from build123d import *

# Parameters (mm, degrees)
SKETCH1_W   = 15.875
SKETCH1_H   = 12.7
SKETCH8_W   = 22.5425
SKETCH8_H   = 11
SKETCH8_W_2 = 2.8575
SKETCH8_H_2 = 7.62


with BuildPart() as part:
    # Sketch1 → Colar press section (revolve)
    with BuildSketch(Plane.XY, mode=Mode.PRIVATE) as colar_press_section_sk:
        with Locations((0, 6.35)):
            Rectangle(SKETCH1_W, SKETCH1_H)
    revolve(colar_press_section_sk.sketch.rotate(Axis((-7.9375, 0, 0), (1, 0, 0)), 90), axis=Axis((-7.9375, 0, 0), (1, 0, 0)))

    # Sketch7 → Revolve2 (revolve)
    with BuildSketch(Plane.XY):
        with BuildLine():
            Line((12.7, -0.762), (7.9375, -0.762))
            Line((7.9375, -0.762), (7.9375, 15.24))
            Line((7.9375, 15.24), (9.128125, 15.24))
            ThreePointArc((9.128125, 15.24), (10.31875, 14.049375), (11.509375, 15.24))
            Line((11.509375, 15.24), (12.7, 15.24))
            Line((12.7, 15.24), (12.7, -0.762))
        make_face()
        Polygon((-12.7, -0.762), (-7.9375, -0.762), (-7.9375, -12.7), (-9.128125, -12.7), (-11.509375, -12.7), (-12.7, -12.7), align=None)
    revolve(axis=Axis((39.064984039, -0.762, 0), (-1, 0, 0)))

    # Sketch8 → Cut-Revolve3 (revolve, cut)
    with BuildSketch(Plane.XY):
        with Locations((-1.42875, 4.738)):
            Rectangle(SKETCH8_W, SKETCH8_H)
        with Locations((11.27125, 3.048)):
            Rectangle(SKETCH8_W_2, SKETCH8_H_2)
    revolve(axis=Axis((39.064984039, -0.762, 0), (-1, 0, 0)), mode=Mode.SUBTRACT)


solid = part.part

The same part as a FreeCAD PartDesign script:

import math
import FreeCAD as App
import Part
import Sketcher
from FreeCAD import Vector
Q = App.Units.Quantity


def add_polygon(sketch, points):
    """Adds a closed chain of lines whose ends are joined by coincident constraints."""
    first, n = sketch.GeometryCount, len(points)
    for a, b in zip(points, points[1:] + points[:1]):
        sketch.addGeometry(Part.LineSegment(App.Vector(*a, 0), App.Vector(*b, 0)), False)
    for i in range(n):
        sketch.addConstraint(Sketcher.Constraint("Coincident", first + i, 2, first + (i + 1) % n, 1))

doc = App.newDocument("Part")
body = doc.addObject("PartDesign::Body", "Body")

# Sketch on XY plane
sketch1 = body.newObject("Sketcher::SketchObject", "Sketch")
sketch1.AttachmentSupport = (doc.getObject("XY_Plane"), [""])
sketch1.MapMode = "FlatFace"
add_polygon(sketch1, [(-8, 13), (-8, 0), (8, 0), (8, 13)])  # lines 0-3
sketch1.addConstraint(Sketcher.Constraint("Vertical", 0))
sketch1.addConstraint(Sketcher.Constraint("Horizontal", 1))
sketch1.addConstraint(Sketcher.Constraint("Vertical", 2))
sketch1.addConstraint(Sketcher.Constraint("Horizontal", 3))
sketch1.addConstraint(Sketcher.Constraint("Symmetric", 0, 2, 1, 2, -1, 1))
sketch1.addConstraint(Sketcher.Constraint("DistanceY", 0, 2, 0, 1, Q("0.5 in")))
sketch1.addConstraint(Sketcher.Constraint("DistanceX", 1, 1, 1, 2, Q("0.625 in")))
revolution = body.newObject("PartDesign::Revolution", "Revolution")
revolution.Profile = sketch1
revolution.ReferenceAxis = (sketch1, ["H_Axis"])
revolution.Angle = 360

# Sketch on XY plane
sketch2 = body.newObject("Sketcher::SketchObject", "Sketch001")
sketch2.AttachmentSupport = (doc.getObject("XY_Plane"), [""])
sketch2.MapMode = "FlatFace"
sketch2.addGeometry(Part.LineSegment(Vector(7.9, -0.8, 0), Vector(12.7, -0.8, 0)), False)  # 0
sketch2.addGeometry(Part.LineSegment(Vector(12.7, -0.8, 0), Vector(12.7, 15.2, 0)), False)  # 1
sketch2.addGeometry(Part.LineSegment(Vector(12.7, 15.2, 0), Vector(11.5, 15.2, 0)), False)  # 2
sketch2.addGeometry(Part.ArcOfCircle(Part.Circle(Vector(10.3, 15.2, 0), Vector(0, 0, 1), 1.2), math.radians(180), math.radians(360)), False)  # 3
sketch2.addGeometry(Part.LineSegment(Vector(9.1, 15.2, 0), Vector(7.9, 15.2, 0)), False)  # 4
sketch2.addGeometry(Part.LineSegment(Vector(7.9, 15.2, 0), Vector(7.9, -0.8, 0)), False)  # 5
add_polygon(sketch2, [(-7.9, -0.8), (-12.7, -0.8), (-12.7, -12.7), (-7.9, -12.7)])  # lines 6-9
sketch2.addGeometry(Part.LineSegment(Vector(12.7, -0.8, 0), Vector(-12.7, -0.8, 0)), True)  # axis
sketch2.addConstraint(Sketcher.Constraint("Coincident", 0, 2, 1, 1))
sketch2.addConstraint(Sketcher.Constraint("Coincident", 1, 2, 2, 1))
sketch2.addConstraint(Sketcher.Constraint("Coincident", 2, 2, 3, 2))
sketch2.addConstraint(Sketcher.Constraint("Coincident", 3, 1, 4, 1))
sketch2.addConstraint(Sketcher.Constraint("Coincident", 4, 2, 5, 1))
sketch2.addConstraint(Sketcher.Constraint("Coincident", 5, 2, 0, 1))
sketch2.addConstraint(Sketcher.Constraint("Horizontal", 0))
sketch2.addConstraint(Sketcher.Constraint("Vertical", 1))
sketch2.addConstraint(Sketcher.Constraint("Horizontal", 2))
sketch2.addConstraint(Sketcher.Constraint("Horizontal", 4))
sketch2.addConstraint(Sketcher.Constraint("Vertical", 5))
sketch2.addConstraint(Sketcher.Constraint("Horizontal", 6))
sketch2.addConstraint(Sketcher.Constraint("Vertical", 7))
sketch2.addConstraint(Sketcher.Constraint("Horizontal", 8))
sketch2.addConstraint(Sketcher.Constraint("Vertical", 9))
sketch2.addConstraint(Sketcher.Constraint("Horizontal", 10))
sketch2.addConstraint(Sketcher.Constraint("Coincident", 10, 1, 0, 2))
sketch2.addConstraint(Sketcher.Constraint("Coincident", 10, 2, 6, 2))
sketch2.addConstraint(Sketcher.Constraint("Horizontal", 3, 3, 1, 2))
sketch2.addConstraint(Sketcher.Constraint("Horizontal", 2, 2, 3, 1))
sketch2.addConstraint(Sketcher.Constraint("Equal", 2, 4))
sketch2.addConstraint(Sketcher.Constraint("Equal", 0, 6))
sketch2.addConstraint(Sketcher.Constraint("DistanceX", 10, 2, 10, 1, Q("1 in")))
sketch2.addConstraint(Sketcher.Constraint("Radius", 3, Q("0.046875 in")))
sketch2.addConstraint(Sketcher.Constraint("DistanceY", 1, 1, 1, 2, Q("0.63 in")))
sketch2.addConstraint(Sketcher.Constraint("DistanceY", 7, 2, 7, 1, Q("0.47 in")))
sketch2.addConstraint(Sketcher.Constraint("DistanceY", -1, 1, 3, 3, Q("0.6 in")))
sketch2.addConstraint(Sketcher.Constraint("DistanceX", -1, 1, 0, 2, Q("0.5 in")))
sketch2.addConstraint(Sketcher.Constraint("DistanceX", 0, 1, 0, 2, Q("0.1875 in")))
revolution2 = body.newObject("PartDesign::Revolution", "Revolution001")
revolution2.Profile = sketch2
revolution2.ReferenceAxis = (sketch2, ["Axis0"])
revolution2.Angle = 360

# Sketch on XY plane
sketch3 = body.newObject("Sketcher::SketchObject", "Sketch002")
sketch3.AttachmentSupport = (doc.getObject("XY_Plane"), [""])
sketch3.MapMode = "FlatFace"
add_polygon(sketch3, [(-12.7, 10.2), (-12.7, -0.8), (12.7, -0.8), (12.7, 6.9), (9.8, 6.9), (9.8, 10.2)])  # lines 0-5
sketch3.addGeometry(Part.LineSegment(Vector(12.7, -0.8, 0), Vector(-12.7, -0.8, 0)), True)  # axis
sketch3.addConstraint(Sketcher.Constraint("Vertical", 0))
sketch3.addConstraint(Sketcher.Constraint("Horizontal", 1))
sketch3.addConstraint(Sketcher.Constraint("Vertical", 2))
sketch3.addConstraint(Sketcher.Constraint("Horizontal", 3))
sketch3.addConstraint(Sketcher.Constraint("Vertical", 4))
sketch3.addConstraint(Sketcher.Constraint("Horizontal", 5))
sketch3.addConstraint(Sketcher.Constraint("Horizontal", 6))
sketch3.addConstraint(Sketcher.Constraint("Coincident", 6, 1, 1, 2))
sketch3.addConstraint(Sketcher.Constraint("Vertical", 5, 2, 6, 2))
sketch3.addConstraint(Sketcher.Constraint("DistanceX", 1, 1, 1, 2, Q("1 in")))
sketch3.addConstraint(Sketcher.Constraint("DistanceY", 2, 1, 2, 2, Q("0.3 in")))
sketch3.addConstraint(Sketcher.Constraint("DistanceX", 0, 2, -1, 1, Q("0.5 in")))
sketch3.addConstraint(Sketcher.Constraint("DistanceY", 0, 2, -1, 1, Q("0.03 in")))
sketch3.addConstraint(Sketcher.Constraint("DistanceX", 3, 2, 3, 1, Q("0.1125 in")))
sketch3.addConstraint(Sketcher.Constraint("DistanceY", 0, 2, 0, 1, Q("11 mm")))
groove = body.newObject("PartDesign::Groove", "Groove")
groove.Profile = sketch3
groove.ReferenceAxis = (sketch3, ["Axis0"])
groove.Angle = 360

doc.recompute()
